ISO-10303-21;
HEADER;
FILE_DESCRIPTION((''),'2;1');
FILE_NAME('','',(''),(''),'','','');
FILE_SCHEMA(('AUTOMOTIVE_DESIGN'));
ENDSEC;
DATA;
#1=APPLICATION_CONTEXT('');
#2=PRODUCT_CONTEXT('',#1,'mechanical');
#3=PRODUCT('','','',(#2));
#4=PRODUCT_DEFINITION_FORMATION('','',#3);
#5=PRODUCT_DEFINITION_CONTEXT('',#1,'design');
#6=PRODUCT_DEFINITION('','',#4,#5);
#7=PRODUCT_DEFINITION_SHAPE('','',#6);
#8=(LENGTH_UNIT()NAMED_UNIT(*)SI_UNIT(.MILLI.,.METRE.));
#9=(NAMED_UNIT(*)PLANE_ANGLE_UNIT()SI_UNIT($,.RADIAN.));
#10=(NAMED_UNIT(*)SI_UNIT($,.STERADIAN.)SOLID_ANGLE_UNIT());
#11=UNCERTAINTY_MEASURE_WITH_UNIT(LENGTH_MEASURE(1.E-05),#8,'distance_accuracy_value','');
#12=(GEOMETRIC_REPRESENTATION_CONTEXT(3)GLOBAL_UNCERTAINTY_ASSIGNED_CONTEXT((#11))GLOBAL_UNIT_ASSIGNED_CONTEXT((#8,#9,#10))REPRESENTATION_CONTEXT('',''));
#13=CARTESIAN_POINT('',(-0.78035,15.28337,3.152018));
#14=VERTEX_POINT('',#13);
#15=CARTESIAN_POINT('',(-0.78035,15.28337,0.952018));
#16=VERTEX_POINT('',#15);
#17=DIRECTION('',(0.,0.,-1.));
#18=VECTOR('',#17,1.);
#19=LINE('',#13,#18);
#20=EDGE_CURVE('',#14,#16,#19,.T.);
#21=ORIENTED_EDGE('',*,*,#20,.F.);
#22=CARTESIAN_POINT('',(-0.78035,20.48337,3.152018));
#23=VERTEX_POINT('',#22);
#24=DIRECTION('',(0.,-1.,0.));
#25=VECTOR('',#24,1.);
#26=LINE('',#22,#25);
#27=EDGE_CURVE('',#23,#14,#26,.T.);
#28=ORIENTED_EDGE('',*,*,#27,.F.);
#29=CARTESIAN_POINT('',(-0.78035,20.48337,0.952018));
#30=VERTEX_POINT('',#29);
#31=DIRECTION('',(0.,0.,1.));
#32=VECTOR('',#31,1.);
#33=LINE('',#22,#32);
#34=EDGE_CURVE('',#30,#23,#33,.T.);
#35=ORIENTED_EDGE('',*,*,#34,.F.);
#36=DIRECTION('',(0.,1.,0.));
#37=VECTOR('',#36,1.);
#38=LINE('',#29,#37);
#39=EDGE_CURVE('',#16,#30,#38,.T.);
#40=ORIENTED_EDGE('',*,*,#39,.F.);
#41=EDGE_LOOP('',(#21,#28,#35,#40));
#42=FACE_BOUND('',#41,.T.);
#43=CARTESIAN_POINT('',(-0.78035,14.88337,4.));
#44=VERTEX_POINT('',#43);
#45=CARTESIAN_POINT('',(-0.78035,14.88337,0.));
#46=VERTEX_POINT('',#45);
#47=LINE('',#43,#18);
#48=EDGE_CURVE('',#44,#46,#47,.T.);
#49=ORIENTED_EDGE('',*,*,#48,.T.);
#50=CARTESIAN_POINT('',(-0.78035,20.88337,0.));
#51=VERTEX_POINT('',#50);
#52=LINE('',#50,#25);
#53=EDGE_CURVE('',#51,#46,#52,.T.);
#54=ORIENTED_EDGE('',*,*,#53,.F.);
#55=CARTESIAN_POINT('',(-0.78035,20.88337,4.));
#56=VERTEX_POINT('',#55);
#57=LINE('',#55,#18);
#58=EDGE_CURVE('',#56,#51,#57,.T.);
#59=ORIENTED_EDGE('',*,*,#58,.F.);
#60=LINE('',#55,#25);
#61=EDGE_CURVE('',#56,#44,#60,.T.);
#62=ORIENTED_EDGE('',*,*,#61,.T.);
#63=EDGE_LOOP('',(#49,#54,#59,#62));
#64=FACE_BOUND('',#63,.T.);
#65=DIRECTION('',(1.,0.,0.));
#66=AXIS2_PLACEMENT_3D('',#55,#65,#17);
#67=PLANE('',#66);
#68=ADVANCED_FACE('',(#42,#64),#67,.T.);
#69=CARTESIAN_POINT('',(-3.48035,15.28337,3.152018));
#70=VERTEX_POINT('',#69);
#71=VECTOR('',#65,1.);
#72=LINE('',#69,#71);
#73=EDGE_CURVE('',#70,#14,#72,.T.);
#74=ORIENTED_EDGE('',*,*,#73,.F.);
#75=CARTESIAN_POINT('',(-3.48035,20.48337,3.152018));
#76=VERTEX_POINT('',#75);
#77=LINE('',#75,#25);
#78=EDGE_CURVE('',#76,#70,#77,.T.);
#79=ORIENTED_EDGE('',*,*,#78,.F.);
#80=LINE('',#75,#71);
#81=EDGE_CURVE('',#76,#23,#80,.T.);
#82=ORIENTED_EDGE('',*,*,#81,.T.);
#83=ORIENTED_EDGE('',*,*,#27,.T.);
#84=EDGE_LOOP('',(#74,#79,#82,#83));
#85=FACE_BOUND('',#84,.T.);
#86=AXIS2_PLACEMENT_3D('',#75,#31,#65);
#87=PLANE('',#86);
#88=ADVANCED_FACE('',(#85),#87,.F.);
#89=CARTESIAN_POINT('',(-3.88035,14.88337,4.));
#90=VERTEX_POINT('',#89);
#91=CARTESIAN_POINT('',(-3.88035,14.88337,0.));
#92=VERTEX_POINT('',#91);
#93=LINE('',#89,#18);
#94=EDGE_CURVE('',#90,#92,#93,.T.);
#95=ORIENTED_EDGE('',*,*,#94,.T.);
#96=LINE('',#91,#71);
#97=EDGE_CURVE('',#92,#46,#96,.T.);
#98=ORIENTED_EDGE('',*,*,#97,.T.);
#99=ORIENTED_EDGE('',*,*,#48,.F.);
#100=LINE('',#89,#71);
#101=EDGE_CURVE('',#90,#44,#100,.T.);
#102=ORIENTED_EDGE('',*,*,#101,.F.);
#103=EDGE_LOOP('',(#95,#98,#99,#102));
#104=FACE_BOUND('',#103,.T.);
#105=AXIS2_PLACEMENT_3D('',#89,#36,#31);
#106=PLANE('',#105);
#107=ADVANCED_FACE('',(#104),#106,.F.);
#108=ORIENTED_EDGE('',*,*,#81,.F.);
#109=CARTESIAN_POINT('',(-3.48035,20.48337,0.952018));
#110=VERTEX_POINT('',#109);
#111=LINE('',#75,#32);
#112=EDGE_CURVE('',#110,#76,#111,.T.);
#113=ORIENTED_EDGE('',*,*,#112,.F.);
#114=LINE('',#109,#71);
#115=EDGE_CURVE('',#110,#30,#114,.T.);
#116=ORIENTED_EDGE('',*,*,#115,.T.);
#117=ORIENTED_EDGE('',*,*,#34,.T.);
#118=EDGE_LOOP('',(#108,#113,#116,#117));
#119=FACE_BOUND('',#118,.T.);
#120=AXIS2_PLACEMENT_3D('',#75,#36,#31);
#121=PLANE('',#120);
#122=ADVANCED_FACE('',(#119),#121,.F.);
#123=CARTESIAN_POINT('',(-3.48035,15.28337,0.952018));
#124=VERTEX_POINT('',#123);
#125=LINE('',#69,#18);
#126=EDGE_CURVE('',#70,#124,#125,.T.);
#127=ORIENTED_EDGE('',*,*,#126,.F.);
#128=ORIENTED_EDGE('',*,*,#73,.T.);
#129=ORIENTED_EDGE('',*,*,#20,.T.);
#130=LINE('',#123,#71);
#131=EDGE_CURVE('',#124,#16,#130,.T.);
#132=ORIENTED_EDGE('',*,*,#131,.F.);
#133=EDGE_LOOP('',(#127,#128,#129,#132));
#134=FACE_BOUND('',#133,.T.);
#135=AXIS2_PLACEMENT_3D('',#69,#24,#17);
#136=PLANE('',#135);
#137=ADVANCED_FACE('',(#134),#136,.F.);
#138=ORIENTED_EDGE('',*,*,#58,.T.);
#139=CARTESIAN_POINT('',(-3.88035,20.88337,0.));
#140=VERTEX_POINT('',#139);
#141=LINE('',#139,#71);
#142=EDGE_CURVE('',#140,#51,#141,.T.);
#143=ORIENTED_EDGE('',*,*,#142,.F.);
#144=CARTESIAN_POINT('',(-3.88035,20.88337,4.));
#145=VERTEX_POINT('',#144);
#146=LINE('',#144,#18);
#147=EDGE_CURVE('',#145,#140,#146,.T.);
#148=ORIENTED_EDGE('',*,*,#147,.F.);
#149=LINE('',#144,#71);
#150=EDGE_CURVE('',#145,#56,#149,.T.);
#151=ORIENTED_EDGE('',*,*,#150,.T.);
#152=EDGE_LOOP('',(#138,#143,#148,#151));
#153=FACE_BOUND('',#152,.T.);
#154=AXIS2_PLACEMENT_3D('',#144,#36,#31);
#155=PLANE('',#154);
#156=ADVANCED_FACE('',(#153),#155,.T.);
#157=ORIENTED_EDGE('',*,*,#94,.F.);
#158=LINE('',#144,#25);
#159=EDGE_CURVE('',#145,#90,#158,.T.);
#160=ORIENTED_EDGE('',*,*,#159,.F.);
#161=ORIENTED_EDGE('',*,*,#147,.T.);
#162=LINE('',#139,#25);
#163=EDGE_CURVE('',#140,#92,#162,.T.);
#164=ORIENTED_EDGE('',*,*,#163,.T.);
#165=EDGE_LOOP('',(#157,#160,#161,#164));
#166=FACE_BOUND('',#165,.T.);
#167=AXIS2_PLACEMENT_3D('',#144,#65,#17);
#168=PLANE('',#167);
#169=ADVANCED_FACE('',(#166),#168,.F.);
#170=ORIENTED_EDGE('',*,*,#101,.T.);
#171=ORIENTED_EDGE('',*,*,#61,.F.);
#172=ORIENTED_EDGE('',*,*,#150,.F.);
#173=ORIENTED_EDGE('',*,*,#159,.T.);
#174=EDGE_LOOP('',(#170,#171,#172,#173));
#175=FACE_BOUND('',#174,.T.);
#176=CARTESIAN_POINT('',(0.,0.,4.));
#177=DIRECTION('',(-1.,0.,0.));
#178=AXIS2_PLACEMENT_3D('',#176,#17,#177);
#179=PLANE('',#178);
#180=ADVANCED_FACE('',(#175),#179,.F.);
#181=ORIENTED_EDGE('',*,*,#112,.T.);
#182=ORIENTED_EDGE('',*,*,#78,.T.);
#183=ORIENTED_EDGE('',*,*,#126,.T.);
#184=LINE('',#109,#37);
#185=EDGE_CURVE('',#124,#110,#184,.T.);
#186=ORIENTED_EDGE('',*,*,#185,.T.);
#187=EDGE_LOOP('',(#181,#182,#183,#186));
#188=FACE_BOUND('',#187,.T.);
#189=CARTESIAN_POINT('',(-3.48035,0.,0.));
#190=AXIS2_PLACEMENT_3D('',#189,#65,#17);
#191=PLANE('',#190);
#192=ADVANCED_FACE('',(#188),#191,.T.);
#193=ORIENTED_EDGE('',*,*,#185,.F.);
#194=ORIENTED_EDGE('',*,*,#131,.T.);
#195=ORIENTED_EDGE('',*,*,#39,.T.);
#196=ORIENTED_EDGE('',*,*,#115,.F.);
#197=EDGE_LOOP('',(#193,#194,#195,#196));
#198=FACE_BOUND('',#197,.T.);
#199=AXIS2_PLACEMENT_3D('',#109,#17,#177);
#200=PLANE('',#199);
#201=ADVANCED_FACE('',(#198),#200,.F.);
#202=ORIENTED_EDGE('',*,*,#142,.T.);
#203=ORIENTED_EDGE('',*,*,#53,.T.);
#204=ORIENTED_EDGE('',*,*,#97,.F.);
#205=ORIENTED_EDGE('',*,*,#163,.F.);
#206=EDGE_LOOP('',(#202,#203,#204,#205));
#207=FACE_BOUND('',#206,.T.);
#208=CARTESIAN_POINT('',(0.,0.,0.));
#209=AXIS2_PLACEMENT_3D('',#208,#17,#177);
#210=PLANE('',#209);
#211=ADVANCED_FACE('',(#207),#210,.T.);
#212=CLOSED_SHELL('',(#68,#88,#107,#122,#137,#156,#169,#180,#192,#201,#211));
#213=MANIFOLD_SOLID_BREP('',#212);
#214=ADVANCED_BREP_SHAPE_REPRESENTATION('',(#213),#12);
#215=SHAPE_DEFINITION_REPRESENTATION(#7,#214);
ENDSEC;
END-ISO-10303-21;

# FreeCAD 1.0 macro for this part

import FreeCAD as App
import Part
import Sketcher

V = App.Vector


def add_polygon(sketch, points):
    """Adds a closed chain of lines whose ends are joined by coincident constraints."""
    first, n = sketch.GeometryCount, len(points)
    for a, b in zip(points, points[1:] + points[:1]):
        sketch.addGeometry(Part.LineSegment(App.Vector(*a, 0), App.Vector(*b, 0)), False)
    for i in range(n):
        sketch.addConstraint(Sketcher.Constraint("Coincident", first + i, 2, first + (i + 1) % n, 1))

doc = App.newDocument("Part")
body = doc.addObject("PartDesign::Body", "Body")

# Sketch on XY plane
sketch1 = body.newObject("Sketcher::SketchObject", "Sketch")
sketch1.AttachmentSupport = (doc.getObject("XY_Plane"), [""])
sketch1.MapMode = "FlatFace"
add_polygon(sketch1, [(-3.9, 20.9), (-3.9, 14.9), (-0.8, 14.9), (-0.8, 20.9)])  # lines 0-3
sketch1.addConstraint([
    Sketcher.Constraint("Vertical", 0),
    Sketcher.Constraint("Horizontal", 1),
    Sketcher.Constraint("Vertical", 2),
    Sketcher.Constraint("Horizontal", 3),
    Sketcher.Constraint("DistanceY", 0, 2, 0, 1, 6.0),
    Sketcher.Constraint("DistanceX", 1, 1, 1, 2, 3.1),
    Sketcher.Constraint("DistanceX", 0, 2, -1, 1, 3.88035),
    Sketcher.Constraint("DistanceY", -1, 1, 0, 2, 14.88337),
])
pad1 = body.newObject("PartDesign::Pad", "Pad")
pad1.Profile = sketch1
pad1.Length = 4

# Sketch on YZ plane
sketch2 = body.newObject("Sketcher::SketchObject", "Sketch001")
sketch2.AttachmentSupport = (doc.getObject("YZ_Plane"), [""])
sketch2.MapMode = "FlatFace"
sketch2.AttachmentOffset = App.Placement(V(0, 0, -0.78035), App.Rotation())
add_polygon(sketch2, [(20.5, 3.2), (15.3, 3.2), (15.3, 1), (20.5, 1)])  # lines 0-3
sketch2.addConstraint([
    Sketcher.Constraint("Horizontal", 0),
    Sketcher.Constraint("Vertical", 1),
    Sketcher.Constraint("Horizontal", 2),
    Sketcher.Constraint("Vertical", 3),
    Sketcher.Constraint("DistanceX", 0, 2, 0, 1, 5.2),
    Sketcher.Constraint("DistanceY", 1, 2, 1, 1, 2.2),
    Sketcher.Constraint("DistanceX", -1, 1, 0, 2, 15.28337),
    Sketcher.Constraint("DistanceY", -1, 1, 0, 2, 3.152018),
])
pocket1 = body.newObject("PartDesign::Pocket", "Pocket")
pocket1.Profile = sketch2
pocket1.Length = 2.7

doc.recompute()
